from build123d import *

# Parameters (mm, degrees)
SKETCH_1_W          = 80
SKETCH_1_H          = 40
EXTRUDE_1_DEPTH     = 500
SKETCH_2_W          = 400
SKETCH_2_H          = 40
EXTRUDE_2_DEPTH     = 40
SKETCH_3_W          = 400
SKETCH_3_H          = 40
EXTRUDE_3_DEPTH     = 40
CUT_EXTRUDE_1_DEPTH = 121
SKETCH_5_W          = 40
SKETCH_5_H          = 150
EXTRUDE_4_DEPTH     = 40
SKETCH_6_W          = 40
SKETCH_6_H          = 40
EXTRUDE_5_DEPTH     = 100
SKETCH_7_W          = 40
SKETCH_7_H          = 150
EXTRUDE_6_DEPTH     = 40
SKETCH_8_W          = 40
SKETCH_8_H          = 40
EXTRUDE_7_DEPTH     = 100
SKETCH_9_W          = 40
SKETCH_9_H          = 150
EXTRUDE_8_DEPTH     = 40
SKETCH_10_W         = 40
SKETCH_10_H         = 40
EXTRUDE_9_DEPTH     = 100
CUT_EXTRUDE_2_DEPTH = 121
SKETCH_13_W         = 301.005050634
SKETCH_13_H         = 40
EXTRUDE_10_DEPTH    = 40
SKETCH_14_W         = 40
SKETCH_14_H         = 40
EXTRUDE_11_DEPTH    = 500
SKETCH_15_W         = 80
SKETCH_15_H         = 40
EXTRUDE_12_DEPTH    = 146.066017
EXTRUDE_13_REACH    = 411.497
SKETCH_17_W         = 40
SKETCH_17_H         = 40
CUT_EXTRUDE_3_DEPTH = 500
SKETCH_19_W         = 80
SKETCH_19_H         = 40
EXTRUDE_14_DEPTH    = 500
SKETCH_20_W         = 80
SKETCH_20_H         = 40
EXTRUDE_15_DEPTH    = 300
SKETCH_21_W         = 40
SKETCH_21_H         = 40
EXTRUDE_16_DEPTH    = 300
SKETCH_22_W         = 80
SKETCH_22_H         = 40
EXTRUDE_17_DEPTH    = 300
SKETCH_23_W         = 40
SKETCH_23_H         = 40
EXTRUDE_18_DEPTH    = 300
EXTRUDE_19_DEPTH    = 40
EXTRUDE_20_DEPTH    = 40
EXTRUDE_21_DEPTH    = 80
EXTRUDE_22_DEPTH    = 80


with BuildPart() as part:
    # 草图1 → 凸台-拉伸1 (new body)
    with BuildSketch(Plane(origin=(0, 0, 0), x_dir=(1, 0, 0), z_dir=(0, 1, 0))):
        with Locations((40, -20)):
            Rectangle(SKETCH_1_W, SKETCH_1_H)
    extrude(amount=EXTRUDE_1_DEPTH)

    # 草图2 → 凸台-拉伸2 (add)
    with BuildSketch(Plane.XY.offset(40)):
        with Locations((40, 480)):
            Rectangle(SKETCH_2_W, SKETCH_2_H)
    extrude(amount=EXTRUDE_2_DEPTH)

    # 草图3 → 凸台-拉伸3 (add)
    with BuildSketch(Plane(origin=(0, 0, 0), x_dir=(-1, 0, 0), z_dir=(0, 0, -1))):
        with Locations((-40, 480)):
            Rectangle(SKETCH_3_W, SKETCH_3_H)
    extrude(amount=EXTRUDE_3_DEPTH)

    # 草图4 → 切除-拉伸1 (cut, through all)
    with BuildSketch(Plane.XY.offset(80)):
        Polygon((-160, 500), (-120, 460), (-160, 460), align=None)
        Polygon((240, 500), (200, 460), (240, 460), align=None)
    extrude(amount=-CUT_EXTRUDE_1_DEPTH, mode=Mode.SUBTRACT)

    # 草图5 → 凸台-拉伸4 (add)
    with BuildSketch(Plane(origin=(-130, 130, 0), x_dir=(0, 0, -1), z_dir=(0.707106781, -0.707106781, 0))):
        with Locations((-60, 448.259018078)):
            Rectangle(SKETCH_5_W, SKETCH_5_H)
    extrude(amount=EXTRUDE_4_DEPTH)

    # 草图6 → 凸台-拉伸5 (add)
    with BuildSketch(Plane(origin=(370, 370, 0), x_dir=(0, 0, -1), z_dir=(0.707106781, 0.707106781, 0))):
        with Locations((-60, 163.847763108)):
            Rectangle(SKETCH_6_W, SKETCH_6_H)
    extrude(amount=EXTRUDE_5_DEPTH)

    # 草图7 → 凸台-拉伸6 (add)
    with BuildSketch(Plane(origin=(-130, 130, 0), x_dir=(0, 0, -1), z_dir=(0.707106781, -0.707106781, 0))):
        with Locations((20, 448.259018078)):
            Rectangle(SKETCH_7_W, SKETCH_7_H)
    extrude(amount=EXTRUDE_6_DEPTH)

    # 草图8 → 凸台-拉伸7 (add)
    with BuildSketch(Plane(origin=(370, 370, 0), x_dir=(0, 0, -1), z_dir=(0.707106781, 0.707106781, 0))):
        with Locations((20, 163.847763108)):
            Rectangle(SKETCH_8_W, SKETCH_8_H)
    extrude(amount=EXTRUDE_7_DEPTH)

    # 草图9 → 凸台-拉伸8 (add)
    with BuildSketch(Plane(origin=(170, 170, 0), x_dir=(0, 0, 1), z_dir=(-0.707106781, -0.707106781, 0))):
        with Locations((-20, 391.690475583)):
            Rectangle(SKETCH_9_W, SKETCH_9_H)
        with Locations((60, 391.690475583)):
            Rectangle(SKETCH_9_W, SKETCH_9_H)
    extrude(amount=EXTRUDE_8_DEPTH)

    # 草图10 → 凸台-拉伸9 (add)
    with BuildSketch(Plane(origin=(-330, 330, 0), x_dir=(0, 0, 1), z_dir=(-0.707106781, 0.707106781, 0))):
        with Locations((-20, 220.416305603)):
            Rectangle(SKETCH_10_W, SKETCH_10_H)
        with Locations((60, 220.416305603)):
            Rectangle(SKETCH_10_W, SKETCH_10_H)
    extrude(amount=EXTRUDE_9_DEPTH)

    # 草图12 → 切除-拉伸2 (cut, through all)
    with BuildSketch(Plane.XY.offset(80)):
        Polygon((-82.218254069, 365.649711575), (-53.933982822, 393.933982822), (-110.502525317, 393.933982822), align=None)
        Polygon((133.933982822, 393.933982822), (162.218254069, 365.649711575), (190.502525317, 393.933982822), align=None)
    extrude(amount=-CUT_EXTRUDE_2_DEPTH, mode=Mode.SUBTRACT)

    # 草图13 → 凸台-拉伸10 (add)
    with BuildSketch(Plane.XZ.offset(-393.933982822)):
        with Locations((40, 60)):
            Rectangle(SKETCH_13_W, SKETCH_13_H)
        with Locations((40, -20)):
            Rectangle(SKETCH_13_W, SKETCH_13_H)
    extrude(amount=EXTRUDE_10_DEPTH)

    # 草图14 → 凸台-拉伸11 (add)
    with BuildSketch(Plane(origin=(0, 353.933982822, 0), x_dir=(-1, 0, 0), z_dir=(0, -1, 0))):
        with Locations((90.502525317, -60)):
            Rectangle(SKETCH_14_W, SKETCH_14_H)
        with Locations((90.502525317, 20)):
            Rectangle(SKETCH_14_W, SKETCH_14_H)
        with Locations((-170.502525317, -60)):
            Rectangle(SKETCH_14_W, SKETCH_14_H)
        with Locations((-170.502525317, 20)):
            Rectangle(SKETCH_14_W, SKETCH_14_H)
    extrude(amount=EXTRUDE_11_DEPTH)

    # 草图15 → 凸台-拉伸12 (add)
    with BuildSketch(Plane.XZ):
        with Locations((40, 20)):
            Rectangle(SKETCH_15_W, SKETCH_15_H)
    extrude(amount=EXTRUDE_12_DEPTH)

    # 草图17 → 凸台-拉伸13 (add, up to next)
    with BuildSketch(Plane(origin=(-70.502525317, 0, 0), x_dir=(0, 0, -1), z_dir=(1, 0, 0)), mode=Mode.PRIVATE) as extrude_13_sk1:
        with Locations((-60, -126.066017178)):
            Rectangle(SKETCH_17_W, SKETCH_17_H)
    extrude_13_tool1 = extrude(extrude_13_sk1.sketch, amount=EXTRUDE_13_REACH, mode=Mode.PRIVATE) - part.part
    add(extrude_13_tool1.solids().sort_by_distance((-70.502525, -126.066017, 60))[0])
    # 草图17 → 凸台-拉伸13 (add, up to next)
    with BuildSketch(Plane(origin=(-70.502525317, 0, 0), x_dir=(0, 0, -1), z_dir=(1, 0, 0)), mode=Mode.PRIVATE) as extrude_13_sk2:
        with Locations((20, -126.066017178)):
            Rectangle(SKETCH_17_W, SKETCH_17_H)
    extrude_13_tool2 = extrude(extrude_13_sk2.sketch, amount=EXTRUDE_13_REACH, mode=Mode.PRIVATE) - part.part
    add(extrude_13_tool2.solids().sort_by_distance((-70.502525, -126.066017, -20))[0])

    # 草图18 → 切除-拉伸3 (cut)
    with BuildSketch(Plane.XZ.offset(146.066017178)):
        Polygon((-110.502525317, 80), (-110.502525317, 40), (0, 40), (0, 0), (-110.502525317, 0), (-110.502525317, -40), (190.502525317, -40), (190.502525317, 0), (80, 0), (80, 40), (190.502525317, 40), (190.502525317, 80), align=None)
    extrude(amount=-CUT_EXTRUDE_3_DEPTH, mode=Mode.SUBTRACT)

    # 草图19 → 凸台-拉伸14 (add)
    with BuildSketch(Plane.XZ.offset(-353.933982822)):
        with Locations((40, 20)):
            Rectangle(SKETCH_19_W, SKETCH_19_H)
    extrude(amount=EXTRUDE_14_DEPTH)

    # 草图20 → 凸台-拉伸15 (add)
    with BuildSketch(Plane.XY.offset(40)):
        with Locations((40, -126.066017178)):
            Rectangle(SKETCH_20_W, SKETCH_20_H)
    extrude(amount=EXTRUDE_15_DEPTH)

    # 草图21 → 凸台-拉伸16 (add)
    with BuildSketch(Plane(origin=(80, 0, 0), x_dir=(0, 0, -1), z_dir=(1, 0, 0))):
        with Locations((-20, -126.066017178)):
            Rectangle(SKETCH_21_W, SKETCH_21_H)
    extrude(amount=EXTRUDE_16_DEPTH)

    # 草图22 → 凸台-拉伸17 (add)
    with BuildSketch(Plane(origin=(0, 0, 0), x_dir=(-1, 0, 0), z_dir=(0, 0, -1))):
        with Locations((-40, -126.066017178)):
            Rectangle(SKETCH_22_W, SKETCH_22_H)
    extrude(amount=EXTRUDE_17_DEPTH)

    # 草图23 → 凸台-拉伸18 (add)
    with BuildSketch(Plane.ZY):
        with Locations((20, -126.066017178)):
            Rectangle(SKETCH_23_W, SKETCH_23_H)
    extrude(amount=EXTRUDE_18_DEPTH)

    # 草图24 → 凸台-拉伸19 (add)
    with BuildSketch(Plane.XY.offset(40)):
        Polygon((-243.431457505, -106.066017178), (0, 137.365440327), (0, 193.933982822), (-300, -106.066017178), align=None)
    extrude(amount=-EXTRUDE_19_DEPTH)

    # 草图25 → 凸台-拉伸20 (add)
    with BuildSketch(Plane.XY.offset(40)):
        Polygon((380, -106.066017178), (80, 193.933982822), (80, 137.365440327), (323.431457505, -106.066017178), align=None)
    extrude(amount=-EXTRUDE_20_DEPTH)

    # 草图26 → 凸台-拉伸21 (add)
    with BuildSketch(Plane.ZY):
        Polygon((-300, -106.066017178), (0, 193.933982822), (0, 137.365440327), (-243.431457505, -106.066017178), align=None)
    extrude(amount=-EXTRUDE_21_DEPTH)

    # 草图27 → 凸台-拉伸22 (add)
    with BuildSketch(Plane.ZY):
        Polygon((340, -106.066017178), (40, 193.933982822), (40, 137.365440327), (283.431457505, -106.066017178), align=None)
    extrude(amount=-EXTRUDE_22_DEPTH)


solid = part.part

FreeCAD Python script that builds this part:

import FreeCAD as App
import Part
import Sketcher
from FreeCAD import Vector


def add_polygon(sketch, points):
    """Adds a closed chain of lines whose ends are joined by coincident constraints."""
    first, n = sketch.GeometryCount, len(points)
    for a, b in zip(points, points[1:] + points[:1]):
        sketch.addGeometry(Part.LineSegment(App.Vector(*a, 0), App.Vector(*b, 0)), False)
    for i in range(n):
        sketch.addConstraint(Sketcher.Constraint("Coincident", first + i, 2, first + (i + 1) % n, 1))

doc = App.newDocument("Part")
params = doc.addObject("Spreadsheet::Sheet", "Params")
for row, (alias, value) in enumerate([
    ("sketch1_width", "80 mm"),
    ("sketch1_height", "40 mm"),
    ("pad1_length", "500 mm"),
    ("sketch2_width", "400 mm"),
    ("sketch2_height", "40 mm"),
    ("pad2_length", "40 mm"),
    ("sketch3_width", "400 mm"),
    ("sketch3_height", "40 mm"),
    ("pad3_length", "40 mm"),
    ("sketch4_width", "40 mm"),
    ("sketch5_width", "40 mm"),
    ("sketch5_height", "150 mm"),
    ("pad4_length", "40 mm"),
    ("sketch6_width", "40 mm"),
    ("pad5_length", "100 mm"),
    ("sketch7_width", "40 mm"),
    ("sketch7_height", "150 mm"),
    ("pad6_length", "40 mm"),
    ("sketch8_width", "40 mm"),
    ("pad7_length", "100 mm"),
    ("sketch9_width", "40 mm"),
    ("sketch9_height", "150 mm"),
    ("pad8_length", "40 mm"),
    ("sketch10_width", "40 mm"),
    ("pad9_length", "100 mm"),
    ("sketch11_length", "40 mm"),
    ("sketch12_height", "40 mm"),
    ("pad10_length", "40 mm"),
    ("sketch13_width", "40 mm"),
    ("pad11_length", "500 mm"),
    ("sketch14_width", "80 mm"),
    ("sketch14_height", "40 mm"),
    ("pad12_length", "146.066017 mm"),
    ("sketch15_width", "40 mm"),
    ("sketch16_width", "40 mm"),
    ("sketch17_height", "40 mm"),
    ("pocket3_length", "500 mm"),
    ("sketch18_width", "80 mm"),
    ("sketch18_height", "40 mm"),
    ("pad15_length", "500 mm"),
    ("sketch19_width", "80 mm"),
    ("sketch19_height", "40 mm"),
    ("pad16_length", "300 mm"),
    ("sketch20_width", "40 mm"),
    ("pad17_length", "300 mm"),
    ("sketch21_width", "80 mm"),
    ("sketch21_height", "40 mm"),
    ("pad18_length", "300 mm"),
    ("sketch22_width", "40 mm"),
    ("pad19_length", "300 mm"),
    ("pad20_length", "40 mm"),
    ("pad21_length", "40 mm"),
    ("pad22_length", "80 mm"),
    ("pad23_length", "80 mm"),
], start=1):
    params.set(f"A{row}", alias)
    params.set(f"B{row}", "=" + value)
    params.setAlias(f"B{row}", alias)

body = doc.addObject("PartDesign::Body", "Body")

# Sketch on XZ plane
sketch1 = body.newObject("Sketcher::SketchObject", "Sketch")
sketch1.AttachmentSupport = (doc.getObject("XZ_Plane"), [""])
sketch1.MapMode = "FlatFace"
add_polygon(sketch1, [(0, 0), (0, 40), (80, 40), (80, 0)])  # lines 0-3
sketch1.addConstraint([
    Sketcher.Constraint("Vertical", 0),
    Sketcher.Constraint("Horizontal", 1),
    Sketcher.Constraint("Vertical", 2),
    Sketcher.Constraint("Horizontal", 3),
    Sketcher.Constraint("Coincident", 3, 2, -1, 1),
    Sketcher.Constraint("DistanceX", 1, 1, 1, 2, 80.0),
    Sketcher.Constraint("DistanceY", 0, 1, 0, 2, 40.0),
])
sketch1.setExpression("Constraints[9]", "Params.sketch1_width")
sketch1.setExpression("Constraints[10]", "Params.sketch1_height")
pad1 = body.newObject("PartDesign::Pad", "Pad")
pad1.Profile = sketch1
pad1.setExpression("Length", "Params.pad1_length")
pad1.Reversed = True

# Sketch on XY plane
sketch2 = body.newObject("Sketcher::SketchObject", "Sketch001")
sketch2.AttachmentSupport = (doc.getObject("XY_Plane"), [""])
sketch2.MapMode = "FlatFace"
sketch2.AttachmentOffset = App.Placement(Vector(0, 0, 40), App.Rotation())
add_polygon(sketch2, [(-160, 500), (-160, 460), (240, 460), (240, 500)])  # lines 0-3
sketch2.addConstraint([
    Sketcher.Constraint("Vertical", 0),
    Sketcher.Constraint("Horizontal", 1),
    Sketcher.Constraint("Vertical", 2),
    Sketcher.Constraint("Horizontal", 3),
    Sketcher.Constraint("DistanceX", 1, 1, 1, 2, 400.0),
    Sketcher.Constraint("DistanceY", 0, 2, 0, 1, 40.0),
    Sketcher.Constraint("DistanceX", 0, 2, -1, 1, 160.0),
    Sketcher.Constraint("DistanceY", -1, 1, 0, 2, 460.0),
])
sketch2.setExpression("Constraints[8]", "Params.sketch2_width")
sketch2.setExpression("Constraints[9]", "Params.sketch2_height")
pad2 = body.newObject("PartDesign::Pad", "Pad001")
pad2.Profile = sketch2
pad2.setExpression("Length", "Params.pad2_length")

# Sketch on XY plane
sketch3 = body.newObject("Sketcher::SketchObject", "Sketch002")
sketch3.AttachmentSupport = (doc.getObject("XY_Plane"), [""])
sketch3.MapMode = "FlatFace"
add_polygon(sketch3, [(240, 500), (240, 460), (-160, 460), (-160, 500)])  # lines 0-3
sketch3.addConstraint([
    Sketcher.Constraint("Vertical", 0),
    Sketcher.Constraint("Horizontal", 1),
    Sketcher.Constraint("Vertical", 2),
    Sketcher.Constraint("Horizontal", 3),
    Sketcher.Constraint("DistanceX", 1, 2, 1, 1, 400.0),
    Sketcher.Constraint("DistanceY", 0, 2, 0, 1, 40.0),
    Sketcher.Constraint("DistanceX", -1, 1, 0, 2, 240.0),
    Sketcher.Constraint("DistanceY", -1, 1, 0, 2, 460.0),
])
sketch3.setExpression("Constraints[8]", "Params.sketch3_width")
sketch3.setExpression("Constraints[9]", "Params.sketch3_height")
pad3 = body.newObject("PartDesign::Pad", "Pad002")
pad3.Profile = sketch3
pad3.setExpression("Length", "Params.pad3_length")
pad3.Reversed = True

# Sketch on XY plane
sketch4 = body.newObject("Sketcher::SketchObject", "Sketch003")
sketch4.AttachmentSupport = (doc.getObject("XY_Plane"), [""])
sketch4.MapMode = "FlatFace"
sketch4.AttachmentOffset = App.Placement(Vector(0, 0, 80), App.Rotation())
add_polygon(sketch4, [(-120, 460), (-160, 500), (-160, 460)])  # lines 0-2
add_polygon(sketch4, [(240, 500), (200, 460), (240, 460)])  # lines 3-5
sketch4.addConstraint([
    Sketcher.Constraint("Vertical", 1),
    Sketcher.Constraint("Horizontal", 2),
    Sketcher.Constraint("Horizontal", 4),
    Sketcher.Constraint("Vertical", 5),
    Sketcher.Constraint("Perpendicular", 0, 3),
    Sketcher.Constraint("Horizontal", 2, 2, 3, 2),
    Sketcher.Constraint("Horizontal", 0, 2, 5, 2),
    Sketcher.Constraint("Equal", 2, 4),
    Sketcher.Constraint("DistanceX", 2, 1, 2, 2, 40.0),
    Sketcher.Constraint("DistanceX", 0, 2, -1, 1, 160.0),
    Sketcher.Constraint("DistanceY", -1, 1, 0, 2, 500.0),
    Sketcher.Constraint("DistanceX", -1, 1, 3, 2, 200.0),
])
sketch4.setExpression("Constraints[14]", "Params.sketch4_width")
pocket1 = body.newObject("PartDesign::Pocket", "Pocket")
pocket1.Profile = sketch4
pocket1.Type = "ThroughAll"

# Sketch on an angled plane
sketch5 = body.newObject("Sketcher::SketchObject", "Sketch004")
sketch5.Placement = App.Placement(Vector(-130, 130, 0), App.Rotation(Vector(0, 0, -1), Vector(0.707106781, 0.707106781, 0), Vector(0.707106781, -0.707106781, 0), "ZXY"))
add_polygon(sketch5, [(-80, 523), (-80, 373), (-40, 373), (-40, 523)])  # lines 0-3
sketch5.addConstraint([
    Sketcher.Constraint("Vertical", 0),
    Sketcher.Constraint("Horizontal", 1),
    Sketcher.Constraint("Vertical", 2),
    Sketcher.Constraint("Horizontal", 3),
    Sketcher.Constraint("DistanceX", 1, 1, 1, 2, 40.0),
    Sketcher.Constraint("DistanceY", 0, 2, 0, 1, 150.0),
    Sketcher.Constraint("DistanceX", 0, 2, -1, 1, 80.0),
    Sketcher.Constraint("DistanceY", -1, 1, 0, 2, 373.259018),
])
sketch5.setExpression("Constraints[8]", "Params.sketch5_width")
sketch5.setExpression("Constraints[9]", "Params.sketch5_height")
pad4 = body.newObject("PartDesign::Pad", "Pad003")
pad4.Profile = sketch5
pad4.setExpression("Length", "Params.pad4_length")

# Sketch on an angled plane
sketch6 = body.newObject("Sketcher::SketchObject", "Sketch005")
sketch6.Placement = App.Placement(Vector(370, 370, 0), App.Rotation(Vector(0, 0, -1), Vector(-0.707106781, 0.707106781, 0), Vector(0.707106781, 0.707106781, 0), "ZXY"))
add_polygon(sketch6, [(-80, 184), (-80, 144), (-40, 144), (-40, 184)])  # lines 0-3
sketch6.addConstraint([
    Sketcher.Constraint("Vertical", 0),
    Sketcher.Constraint("Horizontal", 1),
    Sketcher.Constraint("Vertical", 2),
    Sketcher.Constraint("Horizontal", 3),
    Sketcher.Constraint("Equal", 3, 0),
    Sketcher.Constraint("DistanceX", 1, 1, 1, 2, 40.0),
    Sketcher.Constraint("DistanceX", 0, 2, -1, 1, 80.0),
    Sketcher.Constraint("DistanceY", -1, 1, 0, 2, 143.847763),
])
sketch6.setExpression("Constraints[9]", "Params.sketch6_width")
pad5 = body.newObject("PartDesign::Pad", "Pad004")
pad5.Profile = sketch6
pad5.setExpression("Length", "Params.pad5_length")

# Sketch on an angled plane
sketch7 = body.newObject("Sketcher::SketchObject", "Sketch006")
sketch7.Placement = App.Placement(Vector(-130, 130, 0), App.Rotation(Vector(0, 0, -1), Vector(0.707106781, 0.707106781, 0), Vector(0.707106781, -0.707106781, 0), "ZXY"))
add_polygon(sketch7, [(0, 523), (0, 373), (40, 373), (40, 523)])  # lines 0-3
sketch7.addConstraint([
    Sketcher.Constraint("Vertical", 0),
    Sketcher.Constraint("Horizontal", 1),
    Sketcher.Constraint("Vertical", 2),
    Sketcher.Constraint("Horizontal", 3),
    Sketcher.Constraint("PointOnObject", 0, 2, -2),
    Sketcher.Constraint("DistanceX", 1, 1, 1, 2, 40.0),
    Sketcher.Constraint("DistanceY", 0, 2, 0, 1, 150.0),
    Sketcher.Constraint("DistanceY", -1, 1, 0, 2, 373.259018),
])
sketch7.setExpression("Constraints[9]", "Params.sketch7_width")
sketch7.setExpression("Constraints[10]", "Params.sketch7_height")
pad6 = body.newObject("PartDesign::Pad", "Pad005")
pad6.Profile = sketch7
pad6.setExpression("Length", "Params.pad6_length")

# Sketch on an angled plane
sketch8 = body.newObject("Sketcher::SketchObject", "Sketch007")
sketch8.Placement = App.Placement(Vector(370, 370, 0), App.Rotation(Vector(0, 0, -1), Vector(-0.707106781, 0.707106781, 0), Vector(0.707106781, 0.707106781, 0), "ZXY"))
add_polygon(sketch8, [(0, 184), (0, 144), (40, 144), (40, 184)])  # lines 0-3
sketch8.addConstraint([
    Sketcher.Constraint("Vertical", 0),
    Sketcher.Constraint("Horizontal", 1),
    Sketcher.Constraint("Vertical", 2),
    Sketcher.Constraint("Horizontal", 3),
    Sketcher.Constraint("PointOnObject", 0, 2, -2),
    Sketcher.Constraint("Equal", 3, 0),
    Sketcher.Constraint("DistanceX", 1, 1, 1, 2, 40.0),
    Sketcher.Constraint("DistanceY", -1, 1, 0, 2, 143.847763),
])
sketch8.setExpression("Constraints[10]", "Params.sketch8_width")
pad7 = body.newObject("PartDesign::Pad", "Pad006")
pad7.Profile = sketch8
pad7.setExpression("Length", "Params.pad7_length")

# Sketch on an angled plane
sketch9 = body.newObject("Sketcher::SketchObject", "Sketch008")
sketch9.Placement = App.Placement(Vector(170, 170, 0), App.Rotation(Vector(0, 0, 1), Vector(-0.707106781, 0.707106781, 0), Vector(-0.707106781, -0.707106781, 0), "ZXY"))
add_polygon(sketch9, [(-40, 467), (-40, 317), (0, 317), (0, 467)])  # lines 0-3
add_polygon(sketch9, [(40, 467), (40, 317), (80, 317), (80, 467)])  # lines 4-7
sketch9.addConstraint([
    Sketcher.Constraint("Vertical", 0),
    Sketcher.Constraint("Horizontal", 1),
    Sketcher.Constraint("Vertical", 2),
    Sketcher.Constraint("Horizontal", 3),
    Sketcher.Constraint("Vertical", 4),
    Sketcher.Constraint("Horizontal", 5),
    Sketcher.Constraint("Vertical", 6),
    Sketcher.Constraint("Horizontal", 7),
    Sketcher.Constraint("Symmetric", 0, 2, 4, 2, -2),
    Sketcher.Constraint("PointOnObject", 1, 2, -2),
    Sketcher.Constraint("Horizontal", 3, 2, 6, 2),
    Sketcher.Constraint("Equal", 3, 5),
    Sketcher.Constraint("DistanceX", 1, 1, 1, 2, 40.0),
    Sketcher.Constraint("DistanceY", 0, 2, 0, 1, 150.0),
    Sketcher.Constraint("DistanceY", -1, 1, 0, 2, 316.690475),
])
sketch9.setExpression("Constraints[20]", "Params.sketch9_width")
sketch9.setExpression("Constraints[21]", "Params.sketch9_height")
pad8 = body.newObject("PartDesign::Pad", "Pad007")
pad8.Profile = sketch9
pad8.setExpression("Length", "Params.pad8_length")

# Sketch on an angled plane
sketch10 = body.newObject("Sketcher::SketchObject", "Sketch009")
sketch10.Placement = App.Placement(Vector(-330, 330, 0), App.Rotation(Vector(0, 0, 1), Vector(0.707106781, 0.707106781, 0), Vector(-0.707106781, 0.707106781, 0), "ZXY"))
add_polygon(sketch10, [(-40, 240), (-40, 200), (0, 200), (0, 240)])  # lines 0-3
add_polygon(sketch10, [(40, 240), (40, 200), (80, 200), (80, 240)])  # lines 4-7
sketch10.addConstraint([
    Sketcher.Constraint("Vertical", 0),
    Sketcher.Constraint("Horizontal", 1),
    Sketcher.Constraint("Vertical", 2),
    Sketcher.Constraint("Horizontal", 3),
    Sketcher.Constraint("Vertical", 4),
    Sketcher.Constraint("Horizontal", 5),
    Sketcher.Constraint("Vertical", 6),
    Sketcher.Constraint("Horizontal", 7),
    Sketcher.Constraint("Symmetric", 0, 2, 4, 2, -2),
    Sketcher.Constraint("PointOnObject", 1, 2, -2),
    Sketcher.Constraint("Horizontal", 3, 2, 6, 2),
    Sketcher.Constraint("Equal", 3, 5),
    Sketcher.Constraint("Equal", 7, 0),
    Sketcher.Constraint("DistanceX", 1, 1, 1, 2, 40.0),
    Sketcher.Constraint("DistanceY", -1, 1, 0, 2, 200.416305),
])
sketch10.setExpression("Constraints[21]", "Params.sketch10_width")
pad9 = body.newObject("PartDesign::Pad", "Pad008")
pad9.Profile = sketch10
pad9.setExpression("Length", "Params.pad9_length")

# Sketch on XY plane
sketch11 = body.newObject("Sketcher::SketchObject", "Sketch010")
sketch11.AttachmentSupport = (doc.getObject("XY_Plane"), [""])
sketch11.MapMode = "FlatFace"
sketch11.AttachmentOffset = App.Placement(Vector(0, 0, 80), App.Rotation())
add_polygon(sketch11, [(-82, 366), (-54, 394), (-111, 394)])  # lines 0-2
add_polygon(sketch11, [(134, 394), (162, 366), (191, 394)])  # lines 3-5
sketch11.addConstraint([
    Sketcher.Constraint("Horizontal", 1),
    Sketcher.Constraint("Horizontal", 5),
    Sketcher.Constraint("Perpendicular", 0, 2),
    Sketcher.Constraint("Parallel", 2, 3),
    Sketcher.Constraint("Perpendicular", 3, 4),
    Sketcher.Constraint("Horizontal", 2, 2, 3, 2),
    Sketcher.Constraint("Horizontal", 1, 2, 4, 2),
    Sketcher.Constraint("Equal", 0, 2),
    Sketcher.Constraint("Distance", 0, 40.0),
    Sketcher.Constraint("DistanceY", -1, 1, 2, 2, 365.649712),
    Sketcher.Constraint("DistanceX", 2, 2, 3, 2, 244.436508),
    Sketcher.Constraint("DistanceX", 0, 2, -1, 1, 53.933983),
])
sketch11.setExpression("Constraints[14]", "Params.sketch11_length")
pocket2 = body.newObject("PartDesign::Pocket", "Pocket001")
pocket2.Profile = sketch11
pocket2.Type = "ThroughAll"

# Sketch on XZ plane
sketch12 = body.newObject("Sketcher::SketchObject", "Sketch011")
sketch12.AttachmentSupport = (doc.getObject("XZ_Plane"), [""])
sketch12.MapMode = "FlatFace"
sketch12.AttachmentOffset = App.Placement(Vector(0, 0, -393.933983), App.Rotation())
add_polygon(sketch12, [(-111, 80), (-111, 40), (191, 40), (191, 80)])  # lines 0-3
add_polygon(sketch12, [(-111, 0), (-111, -40), (191, -40), (191, 0)])  # lines 4-7
sketch12.addConstraint([
    Sketcher.Constraint("Vertical", 0),
    Sketcher.Constraint("Horizontal", 1),
    Sketcher.Constraint("Vertical", 2),
    Sketcher.Constraint("Horizontal", 3),
    Sketcher.Constraint("Vertical", 4),
    Sketcher.Constraint("Horizontal", 5),
    Sketcher.Constraint("Vertical", 6),
    Sketcher.Constraint("Horizontal", 7),
    Sketcher.Constraint("Symmetric", 0, 2, 4, 2, -1),
    Sketcher.Constraint("PointOnObject", 6, 2, -1),
    Sketcher.Constraint("Vertical", 2, 2, 5, 2),
    Sketcher.Constraint("Equal", 2, 4),
    Sketcher.Constraint("DistanceY", 0, 2, 0, 1, 40.0),
    Sketcher.Constraint("DistanceX", 1, 1, 1, 2, 301.005051),
    Sketcher.Constraint("DistanceX", 0, 2, -1, 1, 110.502525),
])
sketch12.setExpression("Constraints[20]", "Params.sketch12_height")
pad10 = body.newObject("PartDesign::Pad", "Pad009")
pad10.Profile = sketch12
pad10.setExpression("Length", "Params.pad10_length")

# Sketch on XZ plane
sketch13 = body.newObject("Sketcher::SketchObject", "Sketch012")
sketch13.AttachmentSupport = (doc.getObject("XZ_Plane"), [""])
sketch13.MapMode = "FlatFace"
sketch13.AttachmentOffset = App.Placement(Vector(0, 0, -353.933983), App.Rotation())
add_polygon(sketch13, [(-71, 40), (-71, 80), (-111, 80), (-111, 40)])  # lines 0-3
add_polygon(sketch13, [(-71, -40), (-71, 0), (-111, 0), (-111, -40)])  # lines 4-7
add_polygon(sketch13, [(191, 40), (191, 80), (151, 80), (151, 40)])  # lines 8-11
add_polygon(sketch13, [(191, -40), (191, 0), (151, 0), (151, -40)])  # lines 12-15
sketch13.addConstraint([
    Sketcher.Constraint("Vertical", 0),
    Sketcher.Constraint("Horizontal", 1),
    Sketcher.Constraint("Vertical", 2),
    Sketcher.Constraint("Horizontal", 3),
    Sketcher.Constraint("Vertical", 4),
    Sketcher.Constraint("Horizontal", 5),
    Sketcher.Constraint("Vertical", 6),
    Sketcher.Constraint("Horizontal", 7),
    Sketcher.Constraint("Vertical", 8),
    Sketcher.Constraint("Horizontal", 9),
    Sketcher.Constraint("Vertical", 10),
    Sketcher.Constraint("Horizontal", 11),
    Sketcher.Constraint("Vertical", 12),
    Sketcher.Constraint("Horizontal", 13),
    Sketcher.Constraint("Vertical", 14),
    Sketcher.Constraint("Horizontal", 15),
    Sketcher.Constraint("Symmetric", 2, 2, 6, 2, -1),
    Sketcher.Constraint("Symmetric", 10, 2, 14, 2, -1),
    Sketcher.Constraint("PointOnObject", 4, 2, -1),
    Sketcher.Constraint("PointOnObject", 12, 2, -1),
    Sketcher.Constraint("Horizontal", 1, 2, 8, 2),
    Sketcher.Constraint("Horizontal", 3, 2, 10, 2),
    Sketcher.Constraint("Vertical", 3, 2, 4, 2),
    Sketcher.Constraint("Vertical", 11, 2, 12, 2),
    Sketcher.Constraint("Equal", 7, 9),
    Sketcher.Constraint("Equal", 15, 0),
    Sketcher.Constraint("Equal", 2, 4),
    Sketcher.Constraint("DistanceX", 1, 2, 1, 1, 40.0),
    Sketcher.Constraint("DistanceX", 0, 2, 8, 2, 261.005051),
    Sketcher.Constraint("DistanceX", 0, 2, -1, 1, 70.502525),
])
sketch13.setExpression("Constraints[43]", "Params.sketch13_width")
pad11 = body.newObject("PartDesign::Pad", "Pad010")
pad11.Profile = sketch13
pad11.setExpression("Length", "Params.pad11_length")

# Sketch on XZ plane
sketch14 = body.newObject("Sketcher::SketchObject", "Sketch013")
sketch14.AttachmentSupport = (doc.getObject("XZ_Plane"), [""])
sketch14.MapMode = "FlatFace"
add_polygon(sketch14, [(0, 40), (0, 0), (80, 0), (80, 40)])  # lines 0-3
sketch14.addConstraint([
    Sketcher.Constraint("Vertical", 0),
    Sketcher.Constraint("Horizontal", 1),
    Sketcher.Constraint("Vertical", 2),
    Sketcher.Constraint("Horizontal", 3),
    Sketcher.Constraint("Coincident", 0, 2, -1, 1),
    Sketcher.Constraint("DistanceX", 1, 1, 1, 2, 80.0),
    Sketcher.Constraint("DistanceY", 0, 2, 0, 1, 40.0),
])
sketch14.setExpression("Constraints[9]", "Params.sketch14_width")
sketch14.setExpression("Constraints[10]", "Params.sketch14_height")
pad12 = body.newObject("PartDesign::Pad", "Pad011")
pad12.Profile = sketch14
pad12.setExpression("Length", "Params.pad12_length")

# Sketch on YZ plane
sketch15 = body.newObject("Sketcher::SketchObject", "Sketch014")
sketch15.AttachmentSupport = (doc.getObject("YZ_Plane"), [""])
sketch15.MapMode = "FlatFace"
sketch15.AttachmentOffset = App.Placement(Vector(0, 0, -70.502525), App.Rotation())
add_polygon(sketch15, [(-106, 80), (-146, 80), (-146, 40), (-106, 40)])  # lines 0-3
sketch15.addConstraint([
    Sketcher.Constraint("Horizontal", 0),
    Sketcher.Constraint("Vertical", 1),
    Sketcher.Constraint("Horizontal", 2),
    Sketcher.Constraint("Vertical", 3),
    Sketcher.Constraint("Equal", 2, 1),
    Sketcher.Constraint("DistanceX", 0, 2, 0, 1, 40.0),
    Sketcher.Constraint("DistanceY", -1, 1, 0, 2, 80.0),
    Sketcher.Constraint("DistanceX", 0, 2, -1, 1, 146.066017),
])
sketch15.setExpression("Constraints[9]", "Params.sketch15_width")
pad13 = body.newObject("PartDesign::Pad", "Pad012")
pad13.Profile = sketch15
pad13.Type = "UpToFirst"

# Sketch on YZ plane
sketch16 = body.newObject("Sketcher::SketchObject", "Sketch015")
sketch16.AttachmentSupport = (doc.getObject("YZ_Plane"), [""])
sketch16.MapMode = "FlatFace"
sketch16.AttachmentOffset = App.Placement(Vector(0, 0, -70.502525), App.Rotation())
add_polygon(sketch16, [(-106, 0), (-146, 0), (-146, -40), (-106, -40)])  # lines 0-3
sketch16.addConstraint([
    Sketcher.Constraint("Horizontal", 0),
    Sketcher.Constraint("Vertical", 1),
    Sketcher.Constraint("Horizontal", 2),
    Sketcher.Constraint("Vertical", 3),
    Sketcher.Constraint("PointOnObject", 0, 2, -1),
    Sketcher.Constraint("Equal", 2, 1),
    Sketcher.Constraint("DistanceX", 0, 2, 0, 1, 40.0),
    Sketcher.Constraint("DistanceX", 0, 2, -1, 1, 146.066017),
])
sketch16.setExpression("Constraints[10]", "Params.sketch16_width")
pad14 = body.newObject("PartDesign::Pad", "Pad013")
pad14.Profile = sketch16
pad14.Type = "UpToFirst"

# Sketch on XZ plane
sketch17 = body.newObject("Sketcher::SketchObject", "Sketch016")
sketch17.AttachmentSupport = (doc.getObject("XZ_Plane"), [""])
sketch17.MapMode = "FlatFace"
sketch17.AttachmentOffset = App.Placement(Vector(0, 0, 146.066017), App.Rotation())
add_polygon(sketch17, [(-111, 80), (-111, 40), (0, 40), (0, 0), (-111, 0), (-111, -40), (191, -40), (191, 0), (80, 0), (80, 40), (191, 40), (191, 80)])  # lines 0-11
sketch17.addConstraint([
    Sketcher.Constraint("Vertical", 0),
    Sketcher.Constraint("Horizontal", 1),
    Sketcher.Constraint("Vertical", 2),
    Sketcher.Constraint("Horizontal", 3),
    Sketcher.Constraint("Vertical", 4),
    Sketcher.Constraint("Horizontal", 5),
    Sketcher.Constraint("Vertical", 6),
    Sketcher.Constraint("Horizontal", 7),
    Sketcher.Constraint("Vertical", 8),
    Sketcher.Constraint("Horizontal", 9),
    Sketcher.Constraint("Vertical", 10),
    Sketcher.Constraint("Horizontal", 11),
    Sketcher.Constraint("Coincident", 2, 2, -1, 1),
    Sketcher.Constraint("Symmetric", 0, 2, 4, 2, -1),
    Sketcher.Constraint("Symmetric", 5, 2, 9, 2, -1),
    Sketcher.Constraint("PointOnObject", 6, 2, -1),
    Sketcher.Constraint("Equal", 3, 7),
    Sketcher.Constraint("Equal", 0, 2),
    Sketcher.Constraint("DistanceY", 0, 2, 0, 1, 40.0),
    Sketcher.Constraint("DistanceX", -1, 1, 7, 2, 80.0),
    Sketcher.Constraint("DistanceX", 5, 1, 5, 2, 301.005051),
])
sketch17.setExpression("Constraints[30]", "Params.sketch17_height")
pocket3 = body.newObject("PartDesign::Pocket", "Pocket002")
pocket3.Profile = sketch17
pocket3.setExpression("Length", "Params.pocket3_length")

# Sketch on XZ plane
sketch18 = body.newObject("Sketcher::SketchObject", "Sketch017")
sketch18.AttachmentSupport = (doc.getObject("XZ_Plane"), [""])
sketch18.MapMode = "FlatFace"
sketch18.AttachmentOffset = App.Placement(Vector(0, 0, -353.933983), App.Rotation())
add_polygon(sketch18, [(0, 40), (0, 0), (80, 0), (80, 40)])  # lines 0-3
sketch18.addConstraint([
    Sketcher.Constraint("Vertical", 0),
    Sketcher.Constraint("Horizontal", 1),
    Sketcher.Constraint("Vertical", 2),
    Sketcher.Constraint("Horizontal", 3),
    Sketcher.Constraint("Coincident", 0, 2, -1, 1),
    Sketcher.Constraint("DistanceX", 1, 1, 1, 2, 80.0),
    Sketcher.Constraint("DistanceY", 0, 2, 0, 1, 40.0),
])
sketch18.setExpression("Constraints[9]", "Params.sketch18_width")
sketch18.setExpression("Constraints[10]", "Params.sketch18_height")
pad15 = body.newObject("PartDesign::Pad", "Pad014")
pad15.Profile = sketch18
pad15.setExpression("Length", "Params.pad15_length")

# Sketch on XY plane
sketch19 = body.newObject("Sketcher::SketchObject", "Sketch018")
sketch19.AttachmentSupport = (doc.getObject("XY_Plane"), [""])
sketch19.MapMode = "FlatFace"
sketch19.AttachmentOffset = App.Placement(Vector(0, 0, 40), App.Rotation())
add_polygon(sketch19, [(0, -106), (0, -146), (80, -146), (80, -106)])  # lines 0-3
sketch19.addConstraint([
    Sketcher.Constraint("Vertical", 0),
    Sketcher.Constraint("Horizontal", 1),
    Sketcher.Constraint("Vertical", 2),
    Sketcher.Constraint("Horizontal", 3),
    Sketcher.Constraint("PointOnObject", 0, 2, -2),
    Sketcher.Constraint("DistanceX", 1, 1, 1, 2, 80.0),
    Sketcher.Constraint("DistanceY", 0, 2, 0, 1, 40.0),
    Sketcher.Constraint("DistanceY", 0, 2, -1, 1, 146.066017),
])
sketch19.setExpression("Constraints[9]", "Params.sketch19_width")
sketch19.setExpression("Constraints[10]", "Params.sketch19_height")
pad16 = body.newObject("PartDesign::Pad", "Pad015")
pad16.Profile = sketch19
pad16.setExpression("Length", "Params.pad16_length")

# Sketch on YZ plane
sketch20 = body.newObject("Sketcher::SketchObject", "Sketch019")
sketch20.AttachmentSupport = (doc.getObject("YZ_Plane"), [""])
sketch20.MapMode = "FlatFace"
sketch20.AttachmentOffset = App.Placement(Vector(0, 0, 80), App.Rotation())
add_polygon(sketch20, [(-106, 40), (-146, 40), (-146, 0), (-106, 0)])  # lines 0-3
sketch20.addConstraint([
    Sketcher.Constraint("Horizontal", 0),
    Sketcher.Constraint("Vertical", 1),
    Sketcher.Constraint("Horizontal", 2),
    Sketcher.Constraint("Vertical", 3),
    Sketcher.Constraint("PointOnObject", 1, 2, -1),
    Sketcher.Constraint("Equal", 2, 1),
    Sketcher.Constraint("DistanceX", 0, 2, 0, 1, 40.0),
    Sketcher.Constraint("DistanceX", 0, 2, -1, 1, 146.066017),
])
sketch20.setExpression("Constraints[10]", "Params.sketch20_width")
pad17 = body.newObject("PartDesign::Pad", "Pad016")
pad17.Profile = sketch20
pad17.setExpression("Length", "Params.pad17_length")

# Sketch on XY plane
sketch21 = body.newObject("Sketcher::SketchObject", "Sketch020")
sketch21.AttachmentSupport = (doc.getObject("XY_Plane"), [""])
sketch21.MapMode = "FlatFace"
add_polygon(sketch21, [(80, -106), (80, -146), (0, -146), (0, -106)])  # lines 0-3
sketch21.addConstraint([
    Sketcher.Constraint("Vertical", 0),
    Sketcher.Constraint("Horizontal", 1),
    Sketcher.Constraint("Vertical", 2),
    Sketcher.Constraint("Horizontal", 3),
    Sketcher.Constraint("PointOnObject", 1, 2, -2),
    Sketcher.Constraint("DistanceX", 1, 2, 1, 1, 80.0),
    Sketcher.Constraint("DistanceY", 0, 2, 0, 1, 40.0),
    Sketcher.Constraint("DistanceY", 0, 2, -1, 1, 146.066017),
])
sketch21.setExpression("Constraints[9]", "Params.sketch21_width")
sketch21.setExpression("Constraints[10]", "Params.sketch21_height")
pad18 = body.newObject("PartDesign::Pad", "Pad017")
pad18.Profile = sketch21
pad18.setExpression("Length", "Params.pad18_length")
pad18.Reversed = True

# Sketch on YZ plane
sketch22 = body.newObject("Sketcher::SketchObject", "Sketch021")
sketch22.AttachmentSupport = (doc.getObject("YZ_Plane"), [""])
sketch22.MapMode = "FlatFace"
add_polygon(sketch22, [(-106, 0), (-146, 0), (-146, 40), (-106, 40)])  # lines 0-3
sketch22.addConstraint([
    Sketcher.Constraint("Horizontal", 0),
    Sketcher.Constraint("Vertical", 1),
    Sketcher.Constraint("Horizontal", 2),
    Sketcher.Constraint("Vertical", 3),
    Sketcher.Constraint("PointOnObject", 0, 2, -1),
    Sketcher.Constraint("Equal", 2, 1),
    Sketcher.Constraint("DistanceX", 0, 2, 0, 1, 40.0),
    Sketcher.Constraint("DistanceX", 0, 2, -1, 1, 146.066017),
])
sketch22.setExpression("Constraints[10]", "Params.sketch22_width")
pad19 = body.newObject("PartDesign::Pad", "Pad018")
pad19.Profile = sketch22
pad19.setExpression("Length", "Params.pad19_length")
pad19.Reversed = True

# Sketch on XY plane
sketch23 = body.newObject("Sketcher::SketchObject", "Sketch022")
sketch23.AttachmentSupport = (doc.getObject("XY_Plane"), [""])
sketch23.MapMode = "FlatFace"
sketch23.AttachmentOffset = App.Placement(Vector(0, 0, 40), App.Rotation())
add_polygon(sketch23, [(-243, -106), (0, 137), (0, 194), (-300, -106)])  # lines 0-3
sketch23.addConstraint([
    Sketcher.Constraint("Vertical", 1),
    Sketcher.Constraint("Horizontal", 3),
    Sketcher.Constraint("PointOnObject", 0, 2, -2),
    Sketcher.Constraint("Parallel", 0, 2),
    Sketcher.Constraint("Equal", 3, 1),
    Sketcher.Constraint("DistanceX", 2, 2, -1, 1, 300.0),
    Sketcher.Constraint("Distance", 0, 344.264069),
    Sketcher.Constraint("DistanceY", -1, 1, 0, 2, 137.36544),
])
pad20 = body.newObject("PartDesign::Pad", "Pad019")
pad20.Profile = sketch23
pad20.setExpression("Length", "Params.pad20_length")
pad20.Reversed = True

# Sketch on XY plane
sketch24 = body.newObject("Sketcher::SketchObject", "Sketch023")
sketch24.AttachmentSupport = (doc.getObject("XY_Plane"), [""])
sketch24.MapMode = "FlatFace"
sketch24.AttachmentOffset = App.Placement(Vector(0, 0, 40), App.Rotation())
add_polygon(sketch24, [(380, -106), (80, 194), (80, 137), (323, -106)])  # lines 0-3
sketch24.addConstraint([
    Sketcher.Constraint("Vertical", 1),
    Sketcher.Constraint("Horizontal", 3),
    Sketcher.Constraint("Parallel", 0, 2),
    Sketcher.Constraint("Equal", 3, 1),
    Sketcher.Constraint("DistanceX", -1, 1, 0, 2, 80.0),
    Sketcher.Constraint("DistanceX", -1, 1, 3, 2, 380.0),
    Sketcher.Constraint("Distance", 2, 344.264069),
    Sketcher.Constraint("DistanceY", -1, 1, 1, 2, 137.36544),
])
pad21 = body.newObject("PartDesign::Pad", "Pad020")
pad21.Profile = sketch24
pad21.setExpression("Length", "Params.pad21_length")
pad21.Reversed = True

# Sketch on YZ plane
sketch25 = body.newObject("Sketcher::SketchObject", "Sketch024")
sketch25.AttachmentSupport = (doc.getObject("YZ_Plane"), [""])
sketch25.MapMode = "FlatFace"
add_polygon(sketch25, [(194, 0), (-106, -300), (-106, -243), (137, 0)])  # lines 0-3
sketch25.addConstraint([
    Sketcher.Constraint("Vertical", 1),
    Sketcher.Constraint("Horizontal", 3),
    Sketcher.Constraint("PointOnObject", 2, 2, -1),
    Sketcher.Constraint("Parallel", 0, 2),
    Sketcher.Constraint("Equal", 3, 1),
    Sketcher.Constraint("DistanceY", 0, 2, -1, 1, 300.0),
    Sketcher.Constraint("Distance", 2, 344.264069),
    Sketcher.Constraint("DistanceX", -1, 1, 2, 2, 137.36544),
])
pad22 = body.newObject("PartDesign::Pad", "Pad021")
pad22.Profile = sketch25
pad22.setExpression("Length", "Params.pad22_length")

# Sketch on YZ plane
sketch26 = body.newObject("Sketcher::SketchObject", "Sketch025")
sketch26.AttachmentSupport = (doc.getObject("YZ_Plane"), [""])
sketch26.MapMode = "FlatFace"
add_polygon(sketch26, [(-106, 340), (194, 40), (137, 40), (-106, 283)])  # lines 0-3
sketch26.addConstraint([
    Sketcher.Constraint("Horizontal", 1),
    Sketcher.Constraint("Vertical", 3),
    Sketcher.Constraint("Parallel", 0, 2),
    Sketcher.Constraint("Equal", 1, 3),
    Sketcher.Constraint("DistanceY", -1, 1, 0, 2, 40.0),
    Sketcher.Constraint("DistanceY", -1, 1, 3, 2, 340.0),
    Sketcher.Constraint("Distance", 2, 344.264069),
    Sketcher.Constraint("DistanceX", -1, 1, 1, 2, 137.36544),
])
pad23 = body.newObject("PartDesign::Pad", "Pad022")
pad23.Profile = sketch26
pad23.setExpression("Length", "Params.pad23_length")

doc.recompute()
